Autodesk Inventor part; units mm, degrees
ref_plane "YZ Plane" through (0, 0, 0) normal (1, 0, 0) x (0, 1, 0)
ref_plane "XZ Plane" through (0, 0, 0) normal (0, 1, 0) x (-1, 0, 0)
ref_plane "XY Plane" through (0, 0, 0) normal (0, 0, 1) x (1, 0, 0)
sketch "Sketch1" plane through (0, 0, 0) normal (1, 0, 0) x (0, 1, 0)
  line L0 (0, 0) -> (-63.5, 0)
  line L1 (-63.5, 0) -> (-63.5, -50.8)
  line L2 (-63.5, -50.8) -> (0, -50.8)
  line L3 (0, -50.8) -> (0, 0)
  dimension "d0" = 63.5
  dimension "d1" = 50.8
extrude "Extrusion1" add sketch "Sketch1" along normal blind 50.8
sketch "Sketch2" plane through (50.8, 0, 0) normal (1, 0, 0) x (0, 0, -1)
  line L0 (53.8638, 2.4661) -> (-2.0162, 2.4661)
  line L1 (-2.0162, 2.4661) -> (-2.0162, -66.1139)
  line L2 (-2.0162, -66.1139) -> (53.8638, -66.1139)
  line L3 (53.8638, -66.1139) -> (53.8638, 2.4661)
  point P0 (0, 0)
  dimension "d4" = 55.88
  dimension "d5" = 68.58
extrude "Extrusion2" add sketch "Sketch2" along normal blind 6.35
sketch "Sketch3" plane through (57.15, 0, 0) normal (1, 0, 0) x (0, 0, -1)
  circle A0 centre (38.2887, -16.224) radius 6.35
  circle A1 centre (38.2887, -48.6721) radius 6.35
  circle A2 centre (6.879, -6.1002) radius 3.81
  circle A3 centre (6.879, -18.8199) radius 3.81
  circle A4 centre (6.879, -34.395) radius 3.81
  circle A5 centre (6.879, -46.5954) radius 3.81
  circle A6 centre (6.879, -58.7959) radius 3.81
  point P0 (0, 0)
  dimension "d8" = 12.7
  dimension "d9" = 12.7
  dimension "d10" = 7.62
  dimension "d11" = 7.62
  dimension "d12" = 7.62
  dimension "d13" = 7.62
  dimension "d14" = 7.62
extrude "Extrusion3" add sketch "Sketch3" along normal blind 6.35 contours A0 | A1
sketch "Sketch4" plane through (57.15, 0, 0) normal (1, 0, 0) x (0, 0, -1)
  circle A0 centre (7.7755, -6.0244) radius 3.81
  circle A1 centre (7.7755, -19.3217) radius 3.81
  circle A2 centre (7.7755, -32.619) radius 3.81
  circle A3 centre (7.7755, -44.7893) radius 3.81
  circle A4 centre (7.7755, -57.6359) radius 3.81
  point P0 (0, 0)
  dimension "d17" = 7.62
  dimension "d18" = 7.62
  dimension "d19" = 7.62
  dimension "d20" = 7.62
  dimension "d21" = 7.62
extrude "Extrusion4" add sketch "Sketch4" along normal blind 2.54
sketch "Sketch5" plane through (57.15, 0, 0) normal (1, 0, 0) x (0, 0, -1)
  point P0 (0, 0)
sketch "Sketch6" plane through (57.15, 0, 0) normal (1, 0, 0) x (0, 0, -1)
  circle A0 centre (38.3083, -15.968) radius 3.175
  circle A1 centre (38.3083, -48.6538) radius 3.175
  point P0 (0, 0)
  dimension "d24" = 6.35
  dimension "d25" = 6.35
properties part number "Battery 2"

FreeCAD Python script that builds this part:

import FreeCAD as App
import Part
import Sketcher

V = App.Vector
Q = App.Units.Quantity


def add_polygon(sketch, points):
    """Adds a closed chain of lines whose ends are joined by coincident constraints."""
    first, n = sketch.GeometryCount, len(points)
    for a, b in zip(points, points[1:] + points[:1]):
        sketch.addGeometry(Part.LineSegment(App.Vector(*a, 0), App.Vector(*b, 0)), False)
    for i in range(n):
        sketch.addConstraint(Sketcher.Constraint("Coincident", first + i, 2, first + (i + 1) % n, 1))

doc = App.newDocument("Part")
body = doc.addObject("PartDesign::Body", "Body")

# Sketch on YZ plane
sketch1 = body.newObject("Sketcher::SketchObject", "Sketch")
sketch1.AttachmentSupport = (doc.getObject("YZ_Plane"), [""])
sketch1.MapMode = "FlatFace"
add_polygon(sketch1, [(0, -51), (0, 0), (-64, 0), (-64, -51)])  # lines 0-3
sketch1.addConstraint(Sketcher.Constraint("Vertical", 0))
sketch1.addConstraint(Sketcher.Constraint("Horizontal", 1))
sketch1.addConstraint(Sketcher.Constraint("Vertical", 2))
sketch1.addConstraint(Sketcher.Constraint("Horizontal", 3))
sketch1.addConstraint(Sketcher.Constraint("Coincident", 0, 2, -1, 1))
sketch1.addConstraint(Sketcher.Constraint("DistanceY", 0, 1, 0, 2, Q("2 in")))
sketch1.addConstraint(Sketcher.Constraint("DistanceX", 1, 2, 1, 1, Q("2.5 in")))
pad1 = body.newObject("PartDesign::Pad", "Pad")
pad1.Profile = sketch1
pad1.Length = Q("2 in")

# Sketch on YZ plane
sketch2 = body.newObject("Sketcher::SketchObject", "Sketch001")
sketch2.AttachmentSupport = (doc.getObject("YZ_Plane"), [""])
sketch2.MapMode = "FlatFace"
sketch2.AttachmentOffset = App.Placement(V(0, 0, 2 * 25.4), App.Rotation())
add_polygon(sketch2, [(-66, -54), (2, -54), (2, 2), (-66, 2)])  # lines 0-3
sketch2.addConstraint(Sketcher.Constraint("Horizontal", 0))
sketch2.addConstraint(Sketcher.Constraint("Vertical", 1))
sketch2.addConstraint(Sketcher.Constraint("Horizontal", 2))
sketch2.addConstraint(Sketcher.Constraint("Vertical", 3))
sketch2.addConstraint(Sketcher.Constraint("DistanceX", 0, 1, 0, 2, Q("2.7 in")))
sketch2.addConstraint(Sketcher.Constraint("DistanceY", 1, 1, 1, 2, Q("2.2 in")))
sketch2.addConstraint(Sketcher.Constraint("DistanceX", -1, 1, 0, 2, Q("0.0971 in")))
sketch2.addConstraint(Sketcher.Constraint("DistanceY", 0, 2, -1, 1, 53.8638))
pad2 = body.newObject("PartDesign::Pad", "Pad001")
pad2.Profile = sketch2
pad2.Length = Q("0.25 in")

# Sketch on YZ plane
sketch3 = body.newObject("Sketcher::SketchObject", "Sketch002")
sketch3.AttachmentSupport = (doc.getObject("YZ_Plane"), [""])
sketch3.MapMode = "FlatFace"
sketch3.AttachmentOffset = App.Placement(V(0, 0, 2.25 * 25.4), App.Rotation())
sketch3.addGeometry(Part.Circle(V(-16, -38, 0), V(0, 0, 1), 6), False)
sketch3.addGeometry(Part.Circle(V(-49, -38, 0), V(0, 0, 1), 6), False)
sketch3.addConstraint(Sketcher.Constraint("Equal", 0, 1))
sketch3.addConstraint(Sketcher.Constraint("Horizontal", 0, 3, 1, 3))
sketch3.addConstraint(Sketcher.Constraint("Diameter", 0, Q("0.5 in")))
sketch3.addConstraint(Sketcher.Constraint("DistanceX", 0, 3, -1, 1, 16.224))
sketch3.addConstraint(Sketcher.Constraint("DistanceY", 0, 3, -1, 1, 38.2887))
sketch3.addConstraint(Sketcher.Constraint("DistanceX", 1, 3, -1, 1, 48.672))
pad3 = body.newObject("PartDesign::Pad", "Pad002")
pad3.Profile = sketch3
pad3.Length = Q("0.25 in")

# Sketch on YZ plane
sketch4 = body.newObject("Sketcher::SketchObject", "Sketch003")
sketch4.AttachmentSupport = (doc.getObject("YZ_Plane"), [""])
sketch4.MapMode = "FlatFace"
sketch4.AttachmentOffset = App.Placement(V(0, 0, 2.25 * 25.4), App.Rotation())
sketch4.addGeometry(Part.Circle(V(-6, -7.8, 0), V(0, 0, 1), 3.8), False)
sketch4.addGeometry(Part.Circle(V(-19.3, -7.8, 0), V(0, 0, 1), 3.8), False)
sketch4.addGeometry(Part.Circle(V(-32.6, -7.8, 0), V(0, 0, 1), 3.8), False)
sketch4.addGeometry(Part.Circle(V(-44.8, -7.8, 0), V(0, 0, 1), 3.8), False)
sketch4.addGeometry(Part.Circle(V(-57.6, -7.8, 0), V(0, 0, 1), 3.8), False)
sketch4.addConstraint(Sketcher.Constraint("Equal", 0, 1))
sketch4.addConstraint(Sketcher.Constraint("Equal", 1, 2))
sketch4.addConstraint(Sketcher.Constraint("Equal", 2, 3))
sketch4.addConstraint(Sketcher.Constraint("Equal", 3, 4))
sketch4.addConstraint(Sketcher.Constraint("Horizontal", 0, 3, 1, 3))
sketch4.addConstraint(Sketcher.Constraint("Horizontal", 1, 3, 2, 3))
sketch4.addConstraint(Sketcher.Constraint("Horizontal", 2, 3, 3, 3))
sketch4.addConstraint(Sketcher.Constraint("Horizontal", 3, 3, 4, 3))
sketch4.addConstraint(Sketcher.Constraint("Diameter", 0, Q("0.3 in")))
sketch4.addConstraint(Sketcher.Constraint("DistanceX", 1, 3, -1, 1, Q("0.7607 in")))
sketch4.addConstraint(Sketcher.Constraint("DistanceX", 0, 3, -1, 1, 6.0244))
sketch4.addConstraint(Sketcher.Constraint("DistanceY", 0, 3, -1, 1, 7.7755))
sketch4.addConstraint(Sketcher.Constraint("DistanceX", 2, 3, -1, 1, 32.619))
sketch4.addConstraint(Sketcher.Constraint("DistanceX", 3, 3, -1, 1, 44.7893))
sketch4.addConstraint(Sketcher.Constraint("DistanceX", 4, 3, -1, 1, 57.636))
pad4 = body.newObject("PartDesign::Pad", "Pad003")
pad4.Profile = sketch4
pad4.Length = Q("0.1 in")

doc.recompute()
